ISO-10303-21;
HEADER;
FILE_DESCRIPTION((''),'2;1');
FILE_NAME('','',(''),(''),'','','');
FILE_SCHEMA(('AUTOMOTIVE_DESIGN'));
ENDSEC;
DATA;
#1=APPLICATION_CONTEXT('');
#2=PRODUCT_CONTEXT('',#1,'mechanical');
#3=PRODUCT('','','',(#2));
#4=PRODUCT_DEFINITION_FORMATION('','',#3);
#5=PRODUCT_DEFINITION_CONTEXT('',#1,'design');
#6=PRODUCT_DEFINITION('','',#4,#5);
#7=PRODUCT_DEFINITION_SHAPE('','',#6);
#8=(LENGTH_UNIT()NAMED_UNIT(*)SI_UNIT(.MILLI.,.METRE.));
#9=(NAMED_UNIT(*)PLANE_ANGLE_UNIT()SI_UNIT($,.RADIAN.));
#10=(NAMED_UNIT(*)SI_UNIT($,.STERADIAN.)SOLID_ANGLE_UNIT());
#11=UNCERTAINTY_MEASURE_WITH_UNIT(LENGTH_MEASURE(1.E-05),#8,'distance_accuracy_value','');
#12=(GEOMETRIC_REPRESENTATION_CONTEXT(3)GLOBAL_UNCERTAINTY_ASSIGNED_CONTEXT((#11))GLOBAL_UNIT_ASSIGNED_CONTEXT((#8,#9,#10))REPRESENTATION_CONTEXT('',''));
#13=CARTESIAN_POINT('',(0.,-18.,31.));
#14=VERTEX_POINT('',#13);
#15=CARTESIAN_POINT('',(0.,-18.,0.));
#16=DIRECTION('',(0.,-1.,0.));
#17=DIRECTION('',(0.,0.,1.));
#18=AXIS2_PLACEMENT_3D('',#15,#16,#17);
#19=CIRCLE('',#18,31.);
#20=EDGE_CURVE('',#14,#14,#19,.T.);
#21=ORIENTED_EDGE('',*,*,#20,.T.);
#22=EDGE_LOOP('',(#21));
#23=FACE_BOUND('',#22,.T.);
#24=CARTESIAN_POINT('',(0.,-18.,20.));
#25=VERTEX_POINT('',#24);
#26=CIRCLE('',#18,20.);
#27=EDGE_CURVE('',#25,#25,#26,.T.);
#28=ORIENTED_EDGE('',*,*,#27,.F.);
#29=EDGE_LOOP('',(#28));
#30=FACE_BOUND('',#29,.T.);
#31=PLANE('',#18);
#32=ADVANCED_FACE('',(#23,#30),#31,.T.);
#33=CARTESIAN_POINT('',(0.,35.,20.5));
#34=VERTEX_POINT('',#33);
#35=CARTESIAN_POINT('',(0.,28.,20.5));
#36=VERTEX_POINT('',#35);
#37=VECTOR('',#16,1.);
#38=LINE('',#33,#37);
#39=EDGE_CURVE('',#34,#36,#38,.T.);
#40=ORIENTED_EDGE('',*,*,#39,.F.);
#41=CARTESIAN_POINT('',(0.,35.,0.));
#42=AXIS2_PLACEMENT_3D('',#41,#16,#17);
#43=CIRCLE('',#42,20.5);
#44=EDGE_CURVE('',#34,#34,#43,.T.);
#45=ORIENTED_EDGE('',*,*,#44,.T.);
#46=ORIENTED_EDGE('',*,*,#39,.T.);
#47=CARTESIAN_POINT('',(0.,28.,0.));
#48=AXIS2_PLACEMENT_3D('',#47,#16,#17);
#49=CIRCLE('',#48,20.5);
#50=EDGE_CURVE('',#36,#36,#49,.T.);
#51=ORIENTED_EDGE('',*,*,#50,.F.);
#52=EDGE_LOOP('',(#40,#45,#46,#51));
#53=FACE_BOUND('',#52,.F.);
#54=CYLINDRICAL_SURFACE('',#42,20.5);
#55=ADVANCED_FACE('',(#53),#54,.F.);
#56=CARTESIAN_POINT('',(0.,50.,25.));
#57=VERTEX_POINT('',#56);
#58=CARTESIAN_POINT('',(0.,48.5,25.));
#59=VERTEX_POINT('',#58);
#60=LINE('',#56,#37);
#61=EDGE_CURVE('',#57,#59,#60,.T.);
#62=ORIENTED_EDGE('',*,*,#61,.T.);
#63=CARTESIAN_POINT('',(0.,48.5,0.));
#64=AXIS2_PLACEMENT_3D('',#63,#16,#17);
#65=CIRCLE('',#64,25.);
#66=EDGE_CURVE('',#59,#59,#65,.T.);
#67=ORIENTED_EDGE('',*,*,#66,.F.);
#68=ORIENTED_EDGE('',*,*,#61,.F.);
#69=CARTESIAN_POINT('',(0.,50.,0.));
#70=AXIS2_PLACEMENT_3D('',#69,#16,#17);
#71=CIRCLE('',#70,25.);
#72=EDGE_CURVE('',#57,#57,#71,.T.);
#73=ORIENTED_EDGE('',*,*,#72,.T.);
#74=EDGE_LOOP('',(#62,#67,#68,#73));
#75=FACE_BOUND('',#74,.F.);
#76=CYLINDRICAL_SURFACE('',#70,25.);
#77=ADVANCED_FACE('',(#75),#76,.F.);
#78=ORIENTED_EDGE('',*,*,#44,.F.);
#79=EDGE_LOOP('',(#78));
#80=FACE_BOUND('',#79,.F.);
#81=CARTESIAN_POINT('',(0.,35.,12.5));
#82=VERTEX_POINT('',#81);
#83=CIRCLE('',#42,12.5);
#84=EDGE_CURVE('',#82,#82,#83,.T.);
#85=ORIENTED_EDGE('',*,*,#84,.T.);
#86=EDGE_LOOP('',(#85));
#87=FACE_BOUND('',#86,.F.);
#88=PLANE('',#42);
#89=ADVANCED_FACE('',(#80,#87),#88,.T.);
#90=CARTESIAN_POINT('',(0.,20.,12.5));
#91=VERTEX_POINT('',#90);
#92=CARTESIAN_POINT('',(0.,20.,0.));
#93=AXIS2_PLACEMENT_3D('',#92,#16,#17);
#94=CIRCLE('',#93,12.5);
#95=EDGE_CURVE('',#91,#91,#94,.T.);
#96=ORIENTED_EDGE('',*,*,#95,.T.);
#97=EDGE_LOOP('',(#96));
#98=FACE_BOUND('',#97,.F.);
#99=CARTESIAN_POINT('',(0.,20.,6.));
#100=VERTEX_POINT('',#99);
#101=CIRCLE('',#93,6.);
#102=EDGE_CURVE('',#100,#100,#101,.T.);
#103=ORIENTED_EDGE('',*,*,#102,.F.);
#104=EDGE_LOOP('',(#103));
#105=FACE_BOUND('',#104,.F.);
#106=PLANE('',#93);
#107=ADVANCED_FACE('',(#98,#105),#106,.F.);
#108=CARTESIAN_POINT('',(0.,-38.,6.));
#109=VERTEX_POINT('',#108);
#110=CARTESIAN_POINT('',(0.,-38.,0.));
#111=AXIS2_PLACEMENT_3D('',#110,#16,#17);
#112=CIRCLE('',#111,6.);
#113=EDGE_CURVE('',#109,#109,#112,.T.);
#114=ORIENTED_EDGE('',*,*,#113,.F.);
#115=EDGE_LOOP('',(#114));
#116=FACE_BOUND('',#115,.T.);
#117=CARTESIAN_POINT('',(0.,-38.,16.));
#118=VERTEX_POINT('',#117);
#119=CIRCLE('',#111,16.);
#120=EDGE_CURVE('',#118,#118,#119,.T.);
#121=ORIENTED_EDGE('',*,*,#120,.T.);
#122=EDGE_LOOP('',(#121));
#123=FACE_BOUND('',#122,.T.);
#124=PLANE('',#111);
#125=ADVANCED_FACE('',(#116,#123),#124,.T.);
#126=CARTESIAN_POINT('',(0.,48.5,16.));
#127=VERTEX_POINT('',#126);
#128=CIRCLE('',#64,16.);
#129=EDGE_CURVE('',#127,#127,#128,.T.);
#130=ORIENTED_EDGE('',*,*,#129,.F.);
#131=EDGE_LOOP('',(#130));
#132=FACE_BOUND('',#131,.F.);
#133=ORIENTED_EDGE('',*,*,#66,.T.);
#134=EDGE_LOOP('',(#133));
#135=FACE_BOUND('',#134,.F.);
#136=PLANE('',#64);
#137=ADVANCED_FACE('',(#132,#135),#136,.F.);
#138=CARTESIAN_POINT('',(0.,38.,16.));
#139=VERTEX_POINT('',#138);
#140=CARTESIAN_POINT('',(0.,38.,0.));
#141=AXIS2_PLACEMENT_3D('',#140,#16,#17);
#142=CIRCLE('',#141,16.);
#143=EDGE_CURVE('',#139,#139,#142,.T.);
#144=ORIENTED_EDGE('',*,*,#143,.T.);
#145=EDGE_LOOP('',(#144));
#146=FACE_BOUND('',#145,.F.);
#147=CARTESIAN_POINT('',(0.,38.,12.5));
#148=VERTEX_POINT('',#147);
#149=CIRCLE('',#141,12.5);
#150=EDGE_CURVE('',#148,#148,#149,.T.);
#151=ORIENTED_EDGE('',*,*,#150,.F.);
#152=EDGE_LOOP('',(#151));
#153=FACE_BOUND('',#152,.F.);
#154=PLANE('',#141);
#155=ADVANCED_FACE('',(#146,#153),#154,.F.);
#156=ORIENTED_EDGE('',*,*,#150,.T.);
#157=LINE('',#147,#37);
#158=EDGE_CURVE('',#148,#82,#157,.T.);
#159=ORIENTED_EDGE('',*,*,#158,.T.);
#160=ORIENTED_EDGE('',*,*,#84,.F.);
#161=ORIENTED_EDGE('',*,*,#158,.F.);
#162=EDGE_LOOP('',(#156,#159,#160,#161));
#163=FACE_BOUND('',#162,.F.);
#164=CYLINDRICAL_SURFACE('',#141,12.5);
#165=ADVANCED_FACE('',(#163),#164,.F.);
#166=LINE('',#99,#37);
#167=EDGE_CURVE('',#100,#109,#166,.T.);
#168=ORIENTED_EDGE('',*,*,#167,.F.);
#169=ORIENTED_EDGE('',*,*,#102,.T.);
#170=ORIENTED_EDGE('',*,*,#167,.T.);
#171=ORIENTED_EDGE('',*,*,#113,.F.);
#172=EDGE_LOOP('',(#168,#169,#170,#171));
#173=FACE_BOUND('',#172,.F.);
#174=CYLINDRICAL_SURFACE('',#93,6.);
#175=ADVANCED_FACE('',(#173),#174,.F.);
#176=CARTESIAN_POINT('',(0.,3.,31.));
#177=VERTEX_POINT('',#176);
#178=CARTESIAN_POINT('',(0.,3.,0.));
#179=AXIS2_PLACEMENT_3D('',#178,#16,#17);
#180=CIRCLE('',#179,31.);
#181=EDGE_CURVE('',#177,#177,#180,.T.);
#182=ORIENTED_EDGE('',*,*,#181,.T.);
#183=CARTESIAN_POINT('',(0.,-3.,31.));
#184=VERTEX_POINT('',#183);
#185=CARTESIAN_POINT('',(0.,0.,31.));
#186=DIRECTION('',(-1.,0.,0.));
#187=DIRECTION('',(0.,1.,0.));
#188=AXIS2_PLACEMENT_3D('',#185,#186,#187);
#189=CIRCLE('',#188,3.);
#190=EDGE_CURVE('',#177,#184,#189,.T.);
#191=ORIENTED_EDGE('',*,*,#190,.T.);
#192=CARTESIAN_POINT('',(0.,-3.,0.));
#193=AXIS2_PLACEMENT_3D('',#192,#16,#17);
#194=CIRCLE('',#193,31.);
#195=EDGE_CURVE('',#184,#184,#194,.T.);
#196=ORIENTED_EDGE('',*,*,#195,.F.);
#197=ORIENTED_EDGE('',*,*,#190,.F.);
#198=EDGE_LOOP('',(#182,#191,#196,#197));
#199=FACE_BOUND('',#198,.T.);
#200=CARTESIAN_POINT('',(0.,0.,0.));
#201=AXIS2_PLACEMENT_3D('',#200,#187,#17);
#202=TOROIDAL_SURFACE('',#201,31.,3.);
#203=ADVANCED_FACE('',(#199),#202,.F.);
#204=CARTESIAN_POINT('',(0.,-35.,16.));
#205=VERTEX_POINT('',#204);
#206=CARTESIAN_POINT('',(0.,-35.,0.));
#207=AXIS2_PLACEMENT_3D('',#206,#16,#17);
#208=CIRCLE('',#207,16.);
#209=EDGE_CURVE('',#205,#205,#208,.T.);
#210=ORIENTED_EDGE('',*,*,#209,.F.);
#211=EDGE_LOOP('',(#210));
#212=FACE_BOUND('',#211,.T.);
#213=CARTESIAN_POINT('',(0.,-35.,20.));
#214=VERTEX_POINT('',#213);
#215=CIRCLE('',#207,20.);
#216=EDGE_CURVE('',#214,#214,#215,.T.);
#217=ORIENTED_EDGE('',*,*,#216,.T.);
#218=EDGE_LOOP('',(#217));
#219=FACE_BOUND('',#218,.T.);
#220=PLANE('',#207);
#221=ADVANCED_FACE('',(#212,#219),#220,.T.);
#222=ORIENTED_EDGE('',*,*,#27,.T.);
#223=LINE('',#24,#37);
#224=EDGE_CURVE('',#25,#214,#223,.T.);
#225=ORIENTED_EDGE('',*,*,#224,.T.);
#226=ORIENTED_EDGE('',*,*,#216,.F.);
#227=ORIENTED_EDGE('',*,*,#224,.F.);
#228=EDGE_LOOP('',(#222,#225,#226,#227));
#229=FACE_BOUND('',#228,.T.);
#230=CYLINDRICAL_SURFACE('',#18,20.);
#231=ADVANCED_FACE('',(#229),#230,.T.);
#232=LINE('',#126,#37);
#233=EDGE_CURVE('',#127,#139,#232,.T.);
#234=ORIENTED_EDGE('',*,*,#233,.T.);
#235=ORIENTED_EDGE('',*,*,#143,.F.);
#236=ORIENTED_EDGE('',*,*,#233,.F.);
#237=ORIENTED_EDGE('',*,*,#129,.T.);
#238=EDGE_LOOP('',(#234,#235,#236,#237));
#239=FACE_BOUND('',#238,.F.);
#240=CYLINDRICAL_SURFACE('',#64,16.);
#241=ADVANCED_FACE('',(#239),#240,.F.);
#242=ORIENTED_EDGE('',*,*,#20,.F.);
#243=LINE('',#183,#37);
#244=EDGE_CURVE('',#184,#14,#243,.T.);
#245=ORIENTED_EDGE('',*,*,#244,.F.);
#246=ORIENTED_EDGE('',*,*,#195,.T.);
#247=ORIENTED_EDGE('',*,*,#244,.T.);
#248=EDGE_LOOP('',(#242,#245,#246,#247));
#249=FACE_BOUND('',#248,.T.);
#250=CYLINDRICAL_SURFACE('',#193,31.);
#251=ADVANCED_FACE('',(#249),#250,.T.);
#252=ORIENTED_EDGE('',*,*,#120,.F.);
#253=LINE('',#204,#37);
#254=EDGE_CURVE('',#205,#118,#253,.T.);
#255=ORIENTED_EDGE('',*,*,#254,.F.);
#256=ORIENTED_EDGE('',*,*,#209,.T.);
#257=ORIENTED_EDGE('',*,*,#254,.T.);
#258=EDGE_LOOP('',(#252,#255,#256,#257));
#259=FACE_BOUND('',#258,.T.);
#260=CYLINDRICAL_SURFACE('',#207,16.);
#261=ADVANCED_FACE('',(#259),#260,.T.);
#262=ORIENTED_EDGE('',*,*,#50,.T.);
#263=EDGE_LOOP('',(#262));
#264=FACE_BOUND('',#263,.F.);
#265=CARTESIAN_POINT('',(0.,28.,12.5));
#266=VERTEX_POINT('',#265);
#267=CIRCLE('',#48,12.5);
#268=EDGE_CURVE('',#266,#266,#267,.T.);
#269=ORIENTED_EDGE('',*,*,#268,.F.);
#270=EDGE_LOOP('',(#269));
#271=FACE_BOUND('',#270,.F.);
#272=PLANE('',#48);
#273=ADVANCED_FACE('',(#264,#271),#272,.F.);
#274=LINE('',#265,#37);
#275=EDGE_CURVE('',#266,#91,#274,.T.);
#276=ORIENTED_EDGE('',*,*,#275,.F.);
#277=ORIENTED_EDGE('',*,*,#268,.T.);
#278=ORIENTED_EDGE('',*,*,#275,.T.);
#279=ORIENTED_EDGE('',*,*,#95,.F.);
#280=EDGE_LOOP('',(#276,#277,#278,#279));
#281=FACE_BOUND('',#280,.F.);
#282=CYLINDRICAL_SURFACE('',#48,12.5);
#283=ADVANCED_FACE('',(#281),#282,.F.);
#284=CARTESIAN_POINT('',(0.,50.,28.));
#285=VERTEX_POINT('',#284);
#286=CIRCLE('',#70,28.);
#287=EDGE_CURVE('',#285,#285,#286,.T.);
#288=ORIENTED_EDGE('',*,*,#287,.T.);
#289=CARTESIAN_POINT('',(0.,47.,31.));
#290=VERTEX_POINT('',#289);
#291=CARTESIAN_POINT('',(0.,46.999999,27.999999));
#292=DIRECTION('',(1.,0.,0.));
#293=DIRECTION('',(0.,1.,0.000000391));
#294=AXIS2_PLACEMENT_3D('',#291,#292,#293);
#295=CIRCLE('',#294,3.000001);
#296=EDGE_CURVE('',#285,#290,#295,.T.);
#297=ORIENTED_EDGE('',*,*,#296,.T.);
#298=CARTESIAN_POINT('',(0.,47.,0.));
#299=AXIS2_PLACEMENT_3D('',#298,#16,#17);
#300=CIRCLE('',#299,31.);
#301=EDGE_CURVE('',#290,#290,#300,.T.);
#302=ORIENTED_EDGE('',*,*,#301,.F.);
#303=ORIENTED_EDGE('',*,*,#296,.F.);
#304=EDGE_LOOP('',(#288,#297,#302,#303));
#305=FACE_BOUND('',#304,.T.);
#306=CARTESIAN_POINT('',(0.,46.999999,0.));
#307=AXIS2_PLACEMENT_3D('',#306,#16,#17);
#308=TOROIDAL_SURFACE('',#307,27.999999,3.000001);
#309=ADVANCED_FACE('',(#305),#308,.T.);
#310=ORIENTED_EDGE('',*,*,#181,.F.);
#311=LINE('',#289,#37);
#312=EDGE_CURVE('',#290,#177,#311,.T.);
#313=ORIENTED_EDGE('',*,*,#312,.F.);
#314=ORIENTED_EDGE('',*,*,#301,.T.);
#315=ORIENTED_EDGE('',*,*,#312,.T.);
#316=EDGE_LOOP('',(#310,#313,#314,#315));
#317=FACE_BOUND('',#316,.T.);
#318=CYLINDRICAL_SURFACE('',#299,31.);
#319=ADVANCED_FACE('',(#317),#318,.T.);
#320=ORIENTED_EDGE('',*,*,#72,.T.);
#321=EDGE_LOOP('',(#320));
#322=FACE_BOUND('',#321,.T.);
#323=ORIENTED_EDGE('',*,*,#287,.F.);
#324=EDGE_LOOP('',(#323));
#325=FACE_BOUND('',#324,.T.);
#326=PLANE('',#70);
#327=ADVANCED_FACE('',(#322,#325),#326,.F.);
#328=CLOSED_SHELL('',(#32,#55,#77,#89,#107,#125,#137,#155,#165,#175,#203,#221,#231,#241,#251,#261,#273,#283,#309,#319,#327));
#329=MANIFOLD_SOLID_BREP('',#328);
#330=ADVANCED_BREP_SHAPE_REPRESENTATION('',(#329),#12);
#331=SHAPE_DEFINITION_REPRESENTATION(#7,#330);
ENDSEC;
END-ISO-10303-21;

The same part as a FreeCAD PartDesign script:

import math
import FreeCAD as App
import Part
import Sketcher
Q = App.Units.Quantity

doc = App.newDocument("Part")
body = doc.addObject("PartDesign::Body", "Body")

sketch1 = body.newObject("Sketcher::SketchObject", "Sketch")
sketch1.AttachmentSupport = (doc.getObject("YZ_Plane"), [""])
sketch1.MapMode = "FlatFace"
sketch1.addGeometry([
    Part.LineSegment(App.Vector(-38, 16, 0), App.Vector(-38, 0, 0)),
    Part.LineSegment(App.Vector(-38, 0, 0), App.Vector(50, 0, 0)),
    Part.LineSegment(App.Vector(50, 0, 0), App.Vector(50, 28, 0)),
    Part.ArcOfCircle(Part.Circle(App.Vector(46.999999, 27.999999, 0), App.Vector(0, 0, 1), 3.000001), math.radians(0.000022), math.radians(89.999978)),
    Part.LineSegment(App.Vector(47, 31, 0), App.Vector(3, 31, 0)),
    Part.ArcOfCircle(Part.Circle(App.Vector(0, 31, 0), App.Vector(0, 0, 1), 3), math.radians(180), math.radians(360)),
    Part.LineSegment(App.Vector(-3, 31, 0), App.Vector(-18, 31, 0)),
    Part.LineSegment(App.Vector(-18, 31, 0), App.Vector(-18, 20, 0)),
    Part.LineSegment(App.Vector(-18, 20, 0), App.Vector(-35, 20, 0)),
    Part.LineSegment(App.Vector(-35, 20, 0), App.Vector(-35, 16, 0)),
    Part.LineSegment(App.Vector(-35, 16, 0), App.Vector(-38, 16, 0)),
], False)
sketch1.addConstraint([
    Sketcher.Constraint("Coincident", 0, 2, 1, 1),
    Sketcher.Constraint("Coincident", 1, 2, 2, 1),
    Sketcher.Constraint("Tangent", 2, 2, 3, 1),
    Sketcher.Constraint("Tangent", 3, 2, 4, 1),
    Sketcher.Constraint("Coincident", 4, 2, 5, 2),
    Sketcher.Constraint("Coincident", 5, 1, 6, 1),
    Sketcher.Constraint("Coincident", 6, 2, 7, 1),
    Sketcher.Constraint("Coincident", 7, 2, 8, 1),
    Sketcher.Constraint("Coincident", 8, 2, 9, 1),
    Sketcher.Constraint("Coincident", 9, 2, 10, 1),
    Sketcher.Constraint("Coincident", 10, 2, 0, 1),
    Sketcher.Constraint("Vertical", 0),
    Sketcher.Constraint("Horizontal", 1),
    Sketcher.Constraint("Vertical", 2),
    Sketcher.Constraint("Horizontal", 4),
    Sketcher.Constraint("Horizontal", 6),
    Sketcher.Constraint("Vertical", 7),
    Sketcher.Constraint("Horizontal", 8),
    Sketcher.Constraint("Vertical", 9),
    Sketcher.Constraint("Horizontal", 10),
    Sketcher.Constraint("Equal", 3, 5),
    Sketcher.Constraint("Symmetric", 4, 2, 5, 1, -2),
    Sketcher.Constraint("PointOnObject", 0, 2, -1),
    Sketcher.Constraint("Horizontal", 5, 3, 3, 2),
    Sketcher.Constraint("Radius", 3, Q("3.000001 mm")),
    Sketcher.Constraint("DistanceX", 1, 1, 1, 2, Q("88 mm")),
    Sketcher.Constraint("DistanceX", 4, 2, 4, 1, Q("44 mm")),
    Sketcher.Constraint("DistanceX", 6, 2, 6, 1, Q("15 mm")),
    Sketcher.Constraint("DistanceX", 8, 2, 8, 1, Q("17 mm")),
    Sketcher.Constraint("DistanceY", 0, 2, 0, 1, Q("16 mm")),
    Sketcher.Constraint("DistanceY", 2, 1, 2, 2, Q("28 mm")),
    Sketcher.Constraint("DistanceY", 7, 2, 7, 1, Q("11 mm")),
])
revolution = body.newObject("PartDesign::Revolution", "Revolution")
revolution.Profile = sketch1
revolution.ReferenceAxis = (sketch1, ["H_Axis"])
revolution.Angle = 360

sketch2 = body.newObject("Sketcher::SketchObject", "Sketch001")
sketch2.AttachmentSupport = (doc.getObject("YZ_Plane"), [""])
sketch2.MapMode = "FlatFace"
sketch2.addGeometry([
    Part.LineSegment(App.Vector(-38, 0, 0), App.Vector(50, 0, 0)),
    Part.LineSegment(App.Vector(50, 0, 0), App.Vector(50, 25, 0)),
    Part.LineSegment(App.Vector(50, 25, 0), App.Vector(48.5, 25, 0)),
    Part.LineSegment(App.Vector(48.5, 25, 0), App.Vector(48.5, 16, 0)),
    Part.LineSegment(App.Vector(48.5, 16, 0), App.Vector(38, 16, 0)),
    Part.LineSegment(App.Vector(38, 16, 0), App.Vector(38, 12.5, 0)),
    Part.LineSegment(App.Vector(38, 12.5, 0), App.Vector(35, 12.5, 0)),
    Part.LineSegment(App.Vector(35, 12.5, 0), App.Vector(35, 20.5, 0)),
    Part.LineSegment(App.Vector(35, 20.5, 0), App.Vector(28, 20.5, 0)),
    Part.LineSegment(App.Vector(28, 20.5, 0), App.Vector(28, 12.5, 0)),
    Part.LineSegment(App.Vector(28, 12.5, 0), App.Vector(20, 12.5, 0)),
    Part.LineSegment(App.Vector(20, 12.5, 0), App.Vector(20, 6, 0)),
    Part.LineSegment(App.Vector(20, 6, 0), App.Vector(-38, 6, 0)),
    Part.LineSegment(App.Vector(-38, 6, 0), App.Vector(-38, 0, 0)),
], False)
sketch2.addConstraint([
    Sketcher.Constraint("Coincident", 0, 2, 1, 1),
    Sketcher.Constraint("Coincident", 1, 2, 2, 1),
    Sketcher.Constraint("Coincident", 2, 2, 3, 1),
    Sketcher.Constraint("Coincident", 3, 2, 4, 1),
    Sketcher.Constraint("Coincident", 4, 2, 5, 1),
    Sketcher.Constraint("Coincident", 5, 2, 6, 1),
    Sketcher.Constraint("Coincident", 6, 2, 7, 1),
    Sketcher.Constraint("Coincident", 7, 2, 8, 1),
    Sketcher.Constraint("Coincident", 8, 2, 9, 1),
    Sketcher.Constraint("Coincident", 9, 2, 10, 1),
    Sketcher.Constraint("Coincident", 10, 2, 11, 1),
    Sketcher.Constraint("Coincident", 11, 2, 12, 1),
    Sketcher.Constraint("Coincident", 12, 2, 13, 1),
    Sketcher.Constraint("Coincident", 13, 2, 0, 1),
    Sketcher.Constraint("Horizontal", 0),
    Sketcher.Constraint("Vertical", 1),
    Sketcher.Constraint("Horizontal", 2),
    Sketcher.Constraint("Vertical", 3),
    Sketcher.Constraint("Horizontal", 4),
    Sketcher.Constraint("Vertical", 5),
    Sketcher.Constraint("Horizontal", 6),
    Sketcher.Constraint("Vertical", 7),
    Sketcher.Constraint("Horizontal", 8),
    Sketcher.Constraint("Vertical", 9),
    Sketcher.Constraint("Horizontal", 10),
    Sketcher.Constraint("Vertical", 11),
    Sketcher.Constraint("Horizontal", 12),
    Sketcher.Constraint("Vertical", 13),
    Sketcher.Constraint("PointOnObject", 0, 2, -1),
    Sketcher.Constraint("Horizontal", 6, 2, 9, 2),
    Sketcher.Constraint("Equal", 10, 7),
    Sketcher.Constraint("DistanceX", 0, 1, 0, 2, Q("88 mm")),
    Sketcher.Constraint("DistanceX", 6, 2, 6, 1, Q("3 mm")),
    Sketcher.Constraint("DistanceX", 8, 2, 8, 1, Q("7 mm")),
    Sketcher.Constraint("DistanceX", 10, 2, 10, 1, Q("8 mm")),
    Sketcher.Constraint("DistanceX", 12, 2, 12, 1, Q("58 mm")),
    Sketcher.Constraint("DistanceY", 1, 1, 1, 2, Q("25 mm")),
    Sketcher.Constraint("DistanceY", 3, 2, 3, 1, Q("9 mm")),
    Sketcher.Constraint("DistanceY", 13, 2, 13, 1, Q("6 mm")),
    Sketcher.Constraint("DistanceX", 2, 2, 2, 1, Q("1.5 mm")),
    Sketcher.Constraint("DistanceY", 5, 2, 5, 1, Q("3.5 mm")),
    Sketcher.Constraint("DistanceX", -1, 1, 0, 2, Q("50 mm")),
])
groove = body.newObject("PartDesign::Groove", "Groove")
groove.Profile = sketch2
groove.ReferenceAxis = (sketch2, ["H_Axis"])
groove.Angle = 360

doc.recompute()
